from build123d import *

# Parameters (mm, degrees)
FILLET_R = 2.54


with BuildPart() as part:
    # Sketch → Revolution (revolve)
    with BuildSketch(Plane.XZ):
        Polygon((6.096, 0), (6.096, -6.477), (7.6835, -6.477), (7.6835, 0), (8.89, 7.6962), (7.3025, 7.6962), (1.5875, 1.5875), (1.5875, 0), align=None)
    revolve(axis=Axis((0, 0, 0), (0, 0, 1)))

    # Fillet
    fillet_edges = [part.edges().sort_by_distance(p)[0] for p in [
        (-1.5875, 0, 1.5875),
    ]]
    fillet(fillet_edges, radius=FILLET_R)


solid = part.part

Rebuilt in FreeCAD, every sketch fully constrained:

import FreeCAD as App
import Part
import Sketcher

V = App.Vector
Q = App.Units.Quantity


def edges_at(feature, points):
    """Names of the edges that pass closest to the given points."""
    edges = feature.Shape.Edges
    near = lambda p: min(range(len(edges)), key=lambda i: edges[i].distToShape(Part.Vertex(*p))[0])
    return sorted({f"Edge{near(p) + 1}" for p in points})

doc = App.newDocument("Part")
params = doc.addObject("Spreadsheet::Sheet", "Params")
for row, (alias, value) in enumerate([
    ("sketch1_width", "0.0625 in"),
    ("sketch1_height", "0.255 in"),
    ("revolution_angle", "360 deg"),
    ("fillet_radius", "0.1 in"),
], start=1):
    params.set(f"A{row}", alias)
    params.set(f"B{row}", "=" + value)
    params.setAlias(f"B{row}", alias)

body = doc.addObject("PartDesign::Body", "Body")

# Sketch on XZ plane
sketch1 = body.newObject("Sketcher::SketchObject", "Sketch")
sketch1.AttachmentSupport = (doc.getObject("XZ_Plane"), [""])
sketch1.MapMode = "FlatFace"
sketch1.addGeometry(Part.LineSegment(V(6.1, 0, 0), V(6.1, -6.5, 0)), False)
sketch1.addGeometry(Part.LineSegment(V(6.1, -6.5, 0), V(7.7, -6.5, 0)), False)
sketch1.addGeometry(Part.LineSegment(V(7.7, -6.5, 0), V(7.7, 0, 0)), False)
sketch1.addGeometry(Part.LineSegment(V(7.7, 0, 0), V(8.9, 7.7, 0)), False)
sketch1.addGeometry(Part.LineSegment(V(8.9, 7.7, 0), V(7.3, 7.7, 0)), False)
sketch1.addGeometry(Part.LineSegment(V(7.3, 7.7, 0), V(1.6, 1.6, 0)), False)
sketch1.addGeometry(Part.LineSegment(V(1.6, 1.6, 0), V(1.6, 0, 0)), False)
sketch1.addGeometry(Part.LineSegment(V(1.6, 0, 0), V(6.1, 0, 0)), False)
sketch1.addConstraint(Sketcher.Constraint("Coincident", 0, 2, 1, 1))
sketch1.addConstraint(Sketcher.Constraint("Coincident", 1, 2, 2, 1))
sketch1.addConstraint(Sketcher.Constraint("Coincident", 2, 2, 3, 1))
sketch1.addConstraint(Sketcher.Constraint("Coincident", 3, 2, 4, 1))
sketch1.addConstraint(Sketcher.Constraint("Coincident", 4, 2, 5, 1))
sketch1.addConstraint(Sketcher.Constraint("Coincident", 5, 2, 6, 1))
sketch1.addConstraint(Sketcher.Constraint("Coincident", 6, 2, 7, 1))
sketch1.addConstraint(Sketcher.Constraint("Coincident", 7, 2, 0, 1))
sketch1.addConstraint(Sketcher.Constraint("Vertical", 0))
sketch1.addConstraint(Sketcher.Constraint("Horizontal", 1))
sketch1.addConstraint(Sketcher.Constraint("Vertical", 2))
sketch1.addConstraint(Sketcher.Constraint("Horizontal", 4))
sketch1.addConstraint(Sketcher.Constraint("Vertical", 6))
sketch1.addConstraint(Sketcher.Constraint("Horizontal", 7))
sketch1.addConstraint(Sketcher.Constraint("PointOnObject", 2, 2, -1))
sketch1.addConstraint(Sketcher.Constraint("PointOnObject", 6, 2, -1))
sketch1.addConstraint(Sketcher.Constraint("Equal", 1, 4))
sketch1.addConstraint(Sketcher.Constraint("Equal", 4, 6))
sketch1.addConstraint(Sketcher.Constraint("DistanceX", 1, 1, 1, 2, Q("0.0625 in")))
sketch1.addConstraint(Sketcher.Constraint("DistanceY", 0, 2, 0, 1, Q("0.255 in")))
sketch1.addConstraint(Sketcher.Constraint("DistanceX", -1, 1, 0, 2, Q("0.24 in")))
sketch1.addConstraint(Sketcher.Constraint("DistanceX", -1, 1, 3, 2, Q("0.35 in")))
sketch1.addConstraint(Sketcher.Constraint("DistanceX", 5, 2, 2, 2, Q("0.24 in")))
sketch1.addConstraint(Sketcher.Constraint("DistanceY", -1, 1, 3, 2, Q("0.303 in")))
sketch1.setExpression("Constraints[18]", "Params.sketch1_width")
sketch1.setExpression("Constraints[19]", "Params.sketch1_height")
revolution = body.newObject("PartDesign::Revolution", "Revolution")
revolution.Profile = sketch1
revolution.ReferenceAxis = (sketch1, ["V_Axis"])
revolution.setExpression("Angle", "Params.revolution_angle")
doc.recompute()

fillet = body.newObject("PartDesign::Fillet", "Fillet")
fillet.Base = (revolution, edges_at(revolution, [(-1.587, 0, 1.587)]))
fillet.setExpression("Radius", "Params.fillet_radius")

doc.recompute()
